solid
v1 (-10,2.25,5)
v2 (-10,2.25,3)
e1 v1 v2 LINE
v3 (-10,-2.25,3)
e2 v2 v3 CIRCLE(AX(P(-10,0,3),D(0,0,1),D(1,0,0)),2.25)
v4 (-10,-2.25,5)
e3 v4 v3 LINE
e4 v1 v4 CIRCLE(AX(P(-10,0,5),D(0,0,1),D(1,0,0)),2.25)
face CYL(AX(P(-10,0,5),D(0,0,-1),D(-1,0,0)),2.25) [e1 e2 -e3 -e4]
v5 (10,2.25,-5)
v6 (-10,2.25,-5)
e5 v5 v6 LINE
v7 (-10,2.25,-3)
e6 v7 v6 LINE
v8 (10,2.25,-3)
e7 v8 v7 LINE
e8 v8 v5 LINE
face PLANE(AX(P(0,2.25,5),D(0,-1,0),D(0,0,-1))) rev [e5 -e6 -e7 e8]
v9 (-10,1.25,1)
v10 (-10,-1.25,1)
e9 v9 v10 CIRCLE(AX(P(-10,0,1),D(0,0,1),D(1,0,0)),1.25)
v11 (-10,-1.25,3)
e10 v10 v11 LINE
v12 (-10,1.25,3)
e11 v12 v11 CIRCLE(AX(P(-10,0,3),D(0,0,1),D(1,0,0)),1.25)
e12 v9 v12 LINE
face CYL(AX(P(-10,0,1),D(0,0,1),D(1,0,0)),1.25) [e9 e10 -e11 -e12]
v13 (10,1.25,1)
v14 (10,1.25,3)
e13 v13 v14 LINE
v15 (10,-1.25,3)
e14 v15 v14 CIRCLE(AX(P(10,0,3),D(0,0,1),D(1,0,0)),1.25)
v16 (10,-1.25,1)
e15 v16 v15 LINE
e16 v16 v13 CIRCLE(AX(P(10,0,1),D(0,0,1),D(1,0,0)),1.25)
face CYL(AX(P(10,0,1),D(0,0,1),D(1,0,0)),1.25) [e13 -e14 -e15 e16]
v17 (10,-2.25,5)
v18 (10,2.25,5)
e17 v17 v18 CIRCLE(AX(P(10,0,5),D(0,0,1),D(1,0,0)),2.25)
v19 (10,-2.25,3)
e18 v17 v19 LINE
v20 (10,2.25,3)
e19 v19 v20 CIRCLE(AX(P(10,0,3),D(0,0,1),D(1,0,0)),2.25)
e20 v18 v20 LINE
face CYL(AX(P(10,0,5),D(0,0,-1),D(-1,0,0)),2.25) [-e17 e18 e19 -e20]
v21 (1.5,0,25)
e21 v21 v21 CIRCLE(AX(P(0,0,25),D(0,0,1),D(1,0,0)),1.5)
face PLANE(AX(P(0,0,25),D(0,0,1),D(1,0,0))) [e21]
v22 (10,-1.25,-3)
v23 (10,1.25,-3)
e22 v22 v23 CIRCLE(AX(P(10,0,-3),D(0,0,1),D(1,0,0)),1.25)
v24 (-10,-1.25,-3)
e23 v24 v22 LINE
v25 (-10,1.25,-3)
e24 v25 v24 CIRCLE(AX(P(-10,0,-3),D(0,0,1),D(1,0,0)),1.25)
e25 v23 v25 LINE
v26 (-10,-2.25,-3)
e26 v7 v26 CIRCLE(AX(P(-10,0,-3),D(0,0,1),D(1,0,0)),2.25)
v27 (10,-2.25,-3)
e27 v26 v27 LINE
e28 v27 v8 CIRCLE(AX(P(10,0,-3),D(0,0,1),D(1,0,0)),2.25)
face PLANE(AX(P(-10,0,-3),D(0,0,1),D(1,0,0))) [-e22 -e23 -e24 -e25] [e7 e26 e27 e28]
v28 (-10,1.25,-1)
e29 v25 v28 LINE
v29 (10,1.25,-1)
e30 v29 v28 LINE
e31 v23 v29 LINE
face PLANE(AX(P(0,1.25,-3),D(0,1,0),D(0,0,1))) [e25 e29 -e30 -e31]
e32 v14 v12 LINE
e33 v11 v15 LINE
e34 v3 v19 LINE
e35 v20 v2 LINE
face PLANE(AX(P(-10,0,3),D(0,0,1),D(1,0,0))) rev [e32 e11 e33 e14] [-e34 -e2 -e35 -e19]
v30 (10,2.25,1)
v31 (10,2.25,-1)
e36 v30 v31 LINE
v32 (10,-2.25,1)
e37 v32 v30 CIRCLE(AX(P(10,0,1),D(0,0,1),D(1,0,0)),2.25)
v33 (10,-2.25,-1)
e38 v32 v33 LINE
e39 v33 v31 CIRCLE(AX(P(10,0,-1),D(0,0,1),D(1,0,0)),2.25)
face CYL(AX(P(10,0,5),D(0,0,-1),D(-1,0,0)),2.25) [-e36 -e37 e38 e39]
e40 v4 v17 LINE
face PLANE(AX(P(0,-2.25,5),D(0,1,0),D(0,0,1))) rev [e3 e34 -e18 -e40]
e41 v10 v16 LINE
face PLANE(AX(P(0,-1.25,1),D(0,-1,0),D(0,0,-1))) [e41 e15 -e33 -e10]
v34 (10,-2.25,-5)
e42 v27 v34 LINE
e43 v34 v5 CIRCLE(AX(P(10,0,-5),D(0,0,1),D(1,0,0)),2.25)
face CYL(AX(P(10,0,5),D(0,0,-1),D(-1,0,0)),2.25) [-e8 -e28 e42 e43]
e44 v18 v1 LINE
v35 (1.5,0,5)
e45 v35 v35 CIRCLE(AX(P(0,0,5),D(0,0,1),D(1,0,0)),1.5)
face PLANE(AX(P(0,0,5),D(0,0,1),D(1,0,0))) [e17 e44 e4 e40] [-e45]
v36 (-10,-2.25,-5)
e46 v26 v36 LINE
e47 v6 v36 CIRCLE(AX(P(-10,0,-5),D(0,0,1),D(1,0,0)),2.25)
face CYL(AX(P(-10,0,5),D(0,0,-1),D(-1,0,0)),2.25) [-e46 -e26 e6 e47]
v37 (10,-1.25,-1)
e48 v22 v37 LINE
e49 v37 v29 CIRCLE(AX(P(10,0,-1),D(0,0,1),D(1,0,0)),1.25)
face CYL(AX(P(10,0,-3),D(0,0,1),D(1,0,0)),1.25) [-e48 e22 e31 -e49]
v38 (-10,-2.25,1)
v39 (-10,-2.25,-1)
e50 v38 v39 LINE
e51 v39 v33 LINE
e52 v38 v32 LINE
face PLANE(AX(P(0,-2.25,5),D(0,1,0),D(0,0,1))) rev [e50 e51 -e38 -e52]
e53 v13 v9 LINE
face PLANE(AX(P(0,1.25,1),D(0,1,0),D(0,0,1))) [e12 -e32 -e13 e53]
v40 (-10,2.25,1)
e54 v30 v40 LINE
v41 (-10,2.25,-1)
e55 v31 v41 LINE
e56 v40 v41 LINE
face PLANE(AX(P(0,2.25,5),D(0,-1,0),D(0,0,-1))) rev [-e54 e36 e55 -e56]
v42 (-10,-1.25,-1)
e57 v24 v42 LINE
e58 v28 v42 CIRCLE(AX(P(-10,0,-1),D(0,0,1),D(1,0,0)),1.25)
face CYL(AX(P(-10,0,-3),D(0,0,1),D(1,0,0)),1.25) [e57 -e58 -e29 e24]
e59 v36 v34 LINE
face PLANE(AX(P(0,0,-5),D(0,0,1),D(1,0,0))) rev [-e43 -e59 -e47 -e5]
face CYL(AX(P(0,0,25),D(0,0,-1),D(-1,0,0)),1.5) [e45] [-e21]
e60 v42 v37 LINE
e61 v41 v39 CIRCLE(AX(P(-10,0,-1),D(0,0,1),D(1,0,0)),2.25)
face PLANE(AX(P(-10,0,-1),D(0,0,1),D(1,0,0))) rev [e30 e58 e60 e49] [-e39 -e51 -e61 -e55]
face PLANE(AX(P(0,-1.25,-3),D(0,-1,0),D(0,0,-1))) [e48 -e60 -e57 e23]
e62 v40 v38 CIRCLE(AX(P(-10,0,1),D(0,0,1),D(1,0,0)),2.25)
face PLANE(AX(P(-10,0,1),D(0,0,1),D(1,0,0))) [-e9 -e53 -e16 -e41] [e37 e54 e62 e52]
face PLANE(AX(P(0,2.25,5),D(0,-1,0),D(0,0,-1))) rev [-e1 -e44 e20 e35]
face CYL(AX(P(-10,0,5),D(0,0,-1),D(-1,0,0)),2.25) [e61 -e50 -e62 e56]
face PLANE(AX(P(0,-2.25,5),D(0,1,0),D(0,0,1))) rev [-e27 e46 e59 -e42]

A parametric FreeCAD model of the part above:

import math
import FreeCAD as App
import Part
import Sketcher
from FreeCAD import Vector
Q = App.Units.Quantity

doc = App.newDocument("Part")
body = doc.addObject("PartDesign::Body", "Body")

sketch1 = body.newObject("Sketcher::SketchObject", "Sketch")
sketch1.AttachmentSupport = (doc.getObject("XY_Plane"), [""])
sketch1.MapMode = "FlatFace"
sketch1.addGeometry([
    Part.LineSegment(Vector(10, 2.2, 0), Vector(-10, 2.2, 0)),
    Part.ArcOfCircle(Part.Circle(Vector(-10, 0, 0), Vector(0, 0, 1), 2.2), math.radians(90), math.radians(270)),
    Part.LineSegment(Vector(-10, -2.2, 0), Vector(10, -2.2, 0)),
    Part.ArcOfCircle(Part.Circle(Vector(10, 0, 0), Vector(0, 0, 1), 2.2), math.radians(-90), math.radians(90)),
], False)
sketch1.addConstraint([
    Sketcher.Constraint("Tangent", 0, 2, 1, 1),
    Sketcher.Constraint("Tangent", 1, 2, 2, 1),
    Sketcher.Constraint("Tangent", 2, 2, 3, 1),
    Sketcher.Constraint("Tangent", 3, 2, 0, 1),
    Sketcher.Constraint("Horizontal", 0),
    Sketcher.Constraint("Horizontal", 2),
    Sketcher.Constraint("Symmetric", 1, 3, 3, 3, -1, 1),
    Sketcher.Constraint("DistanceX", 0, 2, 0, 1, Q("20 mm")),
    Sketcher.Constraint("Radius", 1, Q("2.25 mm")),
])
pad1 = body.newObject("PartDesign::Pad", "Pad")
pad1.Profile = sketch1
pad1.Length = 10
pad1.Midplane = True

sketch2 = body.newObject("Sketcher::SketchObject", "Sketch001")
sketch2.AttachmentSupport = (doc.getObject("XY_Plane"), [""])
sketch2.MapMode = "FlatFace"
sketch2.AttachmentOffset = App.Placement(Vector(0, 0, 5), App.Rotation())
sketch2.addGeometry(Part.Circle(Vector(0, 0, 0), Vector(0, 0, 1), 1.5), False)
sketch2.addConstraint([
    Sketcher.Constraint("Coincident", 0, 3, -1, 1),
    Sketcher.Constraint("Diameter", 0, Q("3 mm")),
])
pad2 = body.newObject("PartDesign::Pad", "Pad001")
pad2.Profile = sketch2
pad2.Length = 20

sketch3 = body.newObject("Sketcher::SketchObject", "Sketch002")
sketch3.AttachmentSupport = (doc.getObject("XY_Plane"), [""])
sketch3.MapMode = "FlatFace"
sketch3.AttachmentOffset = App.Placement(Vector(0, 0, 2), App.Rotation())
sketch3.addGeometry([
    Part.ArcOfCircle(Part.Circle(Vector(-10, 0, 0), Vector(0, 0, 1), 2.2), math.radians(90), math.radians(270)),
    Part.LineSegment(Vector(-10, -2.2, 0), Vector(10, -2.2, 0)),
    Part.ArcOfCircle(Part.Circle(Vector(10, 0, 0), Vector(0, 0, 1), 2.2), math.radians(-90), math.radians(90)),
    Part.LineSegment(Vector(10, 2.2, 0), Vector(-10, 2.2, 0)),
    Part.ArcOfCircle(Part.Circle(Vector(-10, 0, 0), Vector(0, 0, 1), 1.2), math.radians(90), math.radians(270)),
    Part.LineSegment(Vector(-10, 1.2, 0), Vector(10, 1.2, 0)),
    Part.ArcOfCircle(Part.Circle(Vector(10, 0, 0), Vector(0, 0, 1), 1.2), math.radians(-90), math.radians(90)),
    Part.LineSegment(Vector(10, -1.2, 0), Vector(-10, -1.2, 0)),
], False)
sketch3.addConstraint([
    Sketcher.Constraint("Tangent", 0, 2, 1, 1),
    Sketcher.Constraint("Tangent", 1, 2, 2, 1),
    Sketcher.Constraint("Tangent", 2, 2, 3, 1),
    Sketcher.Constraint("Tangent", 3, 2, 0, 1),
    Sketcher.Constraint("Tangent", 4, 1, 5, 1),
    Sketcher.Constraint("Tangent", 5, 2, 6, 2),
    Sketcher.Constraint("Tangent", 6, 1, 7, 1),
    Sketcher.Constraint("Tangent", 7, 2, 4, 2),
    Sketcher.Constraint("Horizontal", 1),
    Sketcher.Constraint("Horizontal", 3),
    Sketcher.Constraint("Horizontal", 5),
    Sketcher.Constraint("Horizontal", 7),
    Sketcher.Constraint("Coincident", 4, 3, 0, 3),
    Sketcher.Constraint("Symmetric", 0, 3, 2, 3, -1, 1),
    Sketcher.Constraint("Vertical", 6, 3, 1, 2),
    Sketcher.Constraint("DistanceX", 1, 1, 1, 2, Q("20 mm")),
    Sketcher.Constraint("Radius", 0, Q("2.25 mm")),
    Sketcher.Constraint("Radius", 4, Q("1.25 mm")),
])
pocket1 = body.newObject("PartDesign::Pocket", "Pocket")
pocket1.Profile = sketch3
pocket1.Length = 2
pocket1.Midplane = True

sketch4 = body.newObject("Sketcher::SketchObject", "Sketch003")
sketch4.AttachmentSupport = (doc.getObject("XY_Plane"), [""])
sketch4.MapMode = "FlatFace"
sketch4.AttachmentOffset = App.Placement(Vector(0, 0, -2), App.Rotation())
sketch4.addGeometry([
    Part.ArcOfCircle(Part.Circle(Vector(-10, 0, 0), Vector(0, 0, 1), 2.2), math.radians(90), math.radians(270)),
    Part.LineSegment(Vector(-10, -2.2, 0), Vector(10, -2.2, 0)),
    Part.ArcOfCircle(Part.Circle(Vector(10, 0, 0), Vector(0, 0, 1), 2.2), math.radians(-90), math.radians(90)),
    Part.LineSegment(Vector(10, 2.2, 0), Vector(-10, 2.2, 0)),
    Part.ArcOfCircle(Part.Circle(Vector(-10, 0, 0), Vector(0, 0, 1), 1.2), math.radians(90), math.radians(270)),
    Part.LineSegment(Vector(-10, 1.2, 0), Vector(10, 1.2, 0)),
    Part.ArcOfCircle(Part.Circle(Vector(10, 0, 0), Vector(0, 0, 1), 1.2), math.radians(-90), math.radians(90)),
    Part.LineSegment(Vector(10, -1.2, 0), Vector(-10, -1.2, 0)),
], False)
sketch4.addConstraint([
    Sketcher.Constraint("Tangent", 0, 2, 1, 1),
    Sketcher.Constraint("Tangent", 1, 2, 2, 1),
    Sketcher.Constraint("Tangent", 2, 2, 3, 1),
    Sketcher.Constraint("Tangent", 3, 2, 0, 1),
    Sketcher.Constraint("Tangent", 4, 1, 5, 1),
    Sketcher.Constraint("Tangent", 5, 2, 6, 2),
    Sketcher.Constraint("Tangent", 6, 1, 7, 1),
    Sketcher.Constraint("Tangent", 7, 2, 4, 2),
    Sketcher.Constraint("Horizontal", 1),
    Sketcher.Constraint("Horizontal", 3),
    Sketcher.Constraint("Horizontal", 5),
    Sketcher.Constraint("Horizontal", 7),
    Sketcher.Constraint("Coincident", 4, 3, 0, 3),
    Sketcher.Constraint("Symmetric", 0, 3, 2, 3, -1, 1),
    Sketcher.Constraint("Vertical", 6, 3, 1, 2),
    Sketcher.Constraint("DistanceX", 1, 1, 1, 2, Q("20 mm")),
    Sketcher.Constraint("Radius", 0, Q("2.25 mm")),
    Sketcher.Constraint("Radius", 4, Q("1.25 mm")),
])
pocket2 = body.newObject("PartDesign::Pocket", "Pocket001")
pocket2.Profile = sketch4
pocket2.Length = 2
pocket2.Midplane = True

doc.recompute()
